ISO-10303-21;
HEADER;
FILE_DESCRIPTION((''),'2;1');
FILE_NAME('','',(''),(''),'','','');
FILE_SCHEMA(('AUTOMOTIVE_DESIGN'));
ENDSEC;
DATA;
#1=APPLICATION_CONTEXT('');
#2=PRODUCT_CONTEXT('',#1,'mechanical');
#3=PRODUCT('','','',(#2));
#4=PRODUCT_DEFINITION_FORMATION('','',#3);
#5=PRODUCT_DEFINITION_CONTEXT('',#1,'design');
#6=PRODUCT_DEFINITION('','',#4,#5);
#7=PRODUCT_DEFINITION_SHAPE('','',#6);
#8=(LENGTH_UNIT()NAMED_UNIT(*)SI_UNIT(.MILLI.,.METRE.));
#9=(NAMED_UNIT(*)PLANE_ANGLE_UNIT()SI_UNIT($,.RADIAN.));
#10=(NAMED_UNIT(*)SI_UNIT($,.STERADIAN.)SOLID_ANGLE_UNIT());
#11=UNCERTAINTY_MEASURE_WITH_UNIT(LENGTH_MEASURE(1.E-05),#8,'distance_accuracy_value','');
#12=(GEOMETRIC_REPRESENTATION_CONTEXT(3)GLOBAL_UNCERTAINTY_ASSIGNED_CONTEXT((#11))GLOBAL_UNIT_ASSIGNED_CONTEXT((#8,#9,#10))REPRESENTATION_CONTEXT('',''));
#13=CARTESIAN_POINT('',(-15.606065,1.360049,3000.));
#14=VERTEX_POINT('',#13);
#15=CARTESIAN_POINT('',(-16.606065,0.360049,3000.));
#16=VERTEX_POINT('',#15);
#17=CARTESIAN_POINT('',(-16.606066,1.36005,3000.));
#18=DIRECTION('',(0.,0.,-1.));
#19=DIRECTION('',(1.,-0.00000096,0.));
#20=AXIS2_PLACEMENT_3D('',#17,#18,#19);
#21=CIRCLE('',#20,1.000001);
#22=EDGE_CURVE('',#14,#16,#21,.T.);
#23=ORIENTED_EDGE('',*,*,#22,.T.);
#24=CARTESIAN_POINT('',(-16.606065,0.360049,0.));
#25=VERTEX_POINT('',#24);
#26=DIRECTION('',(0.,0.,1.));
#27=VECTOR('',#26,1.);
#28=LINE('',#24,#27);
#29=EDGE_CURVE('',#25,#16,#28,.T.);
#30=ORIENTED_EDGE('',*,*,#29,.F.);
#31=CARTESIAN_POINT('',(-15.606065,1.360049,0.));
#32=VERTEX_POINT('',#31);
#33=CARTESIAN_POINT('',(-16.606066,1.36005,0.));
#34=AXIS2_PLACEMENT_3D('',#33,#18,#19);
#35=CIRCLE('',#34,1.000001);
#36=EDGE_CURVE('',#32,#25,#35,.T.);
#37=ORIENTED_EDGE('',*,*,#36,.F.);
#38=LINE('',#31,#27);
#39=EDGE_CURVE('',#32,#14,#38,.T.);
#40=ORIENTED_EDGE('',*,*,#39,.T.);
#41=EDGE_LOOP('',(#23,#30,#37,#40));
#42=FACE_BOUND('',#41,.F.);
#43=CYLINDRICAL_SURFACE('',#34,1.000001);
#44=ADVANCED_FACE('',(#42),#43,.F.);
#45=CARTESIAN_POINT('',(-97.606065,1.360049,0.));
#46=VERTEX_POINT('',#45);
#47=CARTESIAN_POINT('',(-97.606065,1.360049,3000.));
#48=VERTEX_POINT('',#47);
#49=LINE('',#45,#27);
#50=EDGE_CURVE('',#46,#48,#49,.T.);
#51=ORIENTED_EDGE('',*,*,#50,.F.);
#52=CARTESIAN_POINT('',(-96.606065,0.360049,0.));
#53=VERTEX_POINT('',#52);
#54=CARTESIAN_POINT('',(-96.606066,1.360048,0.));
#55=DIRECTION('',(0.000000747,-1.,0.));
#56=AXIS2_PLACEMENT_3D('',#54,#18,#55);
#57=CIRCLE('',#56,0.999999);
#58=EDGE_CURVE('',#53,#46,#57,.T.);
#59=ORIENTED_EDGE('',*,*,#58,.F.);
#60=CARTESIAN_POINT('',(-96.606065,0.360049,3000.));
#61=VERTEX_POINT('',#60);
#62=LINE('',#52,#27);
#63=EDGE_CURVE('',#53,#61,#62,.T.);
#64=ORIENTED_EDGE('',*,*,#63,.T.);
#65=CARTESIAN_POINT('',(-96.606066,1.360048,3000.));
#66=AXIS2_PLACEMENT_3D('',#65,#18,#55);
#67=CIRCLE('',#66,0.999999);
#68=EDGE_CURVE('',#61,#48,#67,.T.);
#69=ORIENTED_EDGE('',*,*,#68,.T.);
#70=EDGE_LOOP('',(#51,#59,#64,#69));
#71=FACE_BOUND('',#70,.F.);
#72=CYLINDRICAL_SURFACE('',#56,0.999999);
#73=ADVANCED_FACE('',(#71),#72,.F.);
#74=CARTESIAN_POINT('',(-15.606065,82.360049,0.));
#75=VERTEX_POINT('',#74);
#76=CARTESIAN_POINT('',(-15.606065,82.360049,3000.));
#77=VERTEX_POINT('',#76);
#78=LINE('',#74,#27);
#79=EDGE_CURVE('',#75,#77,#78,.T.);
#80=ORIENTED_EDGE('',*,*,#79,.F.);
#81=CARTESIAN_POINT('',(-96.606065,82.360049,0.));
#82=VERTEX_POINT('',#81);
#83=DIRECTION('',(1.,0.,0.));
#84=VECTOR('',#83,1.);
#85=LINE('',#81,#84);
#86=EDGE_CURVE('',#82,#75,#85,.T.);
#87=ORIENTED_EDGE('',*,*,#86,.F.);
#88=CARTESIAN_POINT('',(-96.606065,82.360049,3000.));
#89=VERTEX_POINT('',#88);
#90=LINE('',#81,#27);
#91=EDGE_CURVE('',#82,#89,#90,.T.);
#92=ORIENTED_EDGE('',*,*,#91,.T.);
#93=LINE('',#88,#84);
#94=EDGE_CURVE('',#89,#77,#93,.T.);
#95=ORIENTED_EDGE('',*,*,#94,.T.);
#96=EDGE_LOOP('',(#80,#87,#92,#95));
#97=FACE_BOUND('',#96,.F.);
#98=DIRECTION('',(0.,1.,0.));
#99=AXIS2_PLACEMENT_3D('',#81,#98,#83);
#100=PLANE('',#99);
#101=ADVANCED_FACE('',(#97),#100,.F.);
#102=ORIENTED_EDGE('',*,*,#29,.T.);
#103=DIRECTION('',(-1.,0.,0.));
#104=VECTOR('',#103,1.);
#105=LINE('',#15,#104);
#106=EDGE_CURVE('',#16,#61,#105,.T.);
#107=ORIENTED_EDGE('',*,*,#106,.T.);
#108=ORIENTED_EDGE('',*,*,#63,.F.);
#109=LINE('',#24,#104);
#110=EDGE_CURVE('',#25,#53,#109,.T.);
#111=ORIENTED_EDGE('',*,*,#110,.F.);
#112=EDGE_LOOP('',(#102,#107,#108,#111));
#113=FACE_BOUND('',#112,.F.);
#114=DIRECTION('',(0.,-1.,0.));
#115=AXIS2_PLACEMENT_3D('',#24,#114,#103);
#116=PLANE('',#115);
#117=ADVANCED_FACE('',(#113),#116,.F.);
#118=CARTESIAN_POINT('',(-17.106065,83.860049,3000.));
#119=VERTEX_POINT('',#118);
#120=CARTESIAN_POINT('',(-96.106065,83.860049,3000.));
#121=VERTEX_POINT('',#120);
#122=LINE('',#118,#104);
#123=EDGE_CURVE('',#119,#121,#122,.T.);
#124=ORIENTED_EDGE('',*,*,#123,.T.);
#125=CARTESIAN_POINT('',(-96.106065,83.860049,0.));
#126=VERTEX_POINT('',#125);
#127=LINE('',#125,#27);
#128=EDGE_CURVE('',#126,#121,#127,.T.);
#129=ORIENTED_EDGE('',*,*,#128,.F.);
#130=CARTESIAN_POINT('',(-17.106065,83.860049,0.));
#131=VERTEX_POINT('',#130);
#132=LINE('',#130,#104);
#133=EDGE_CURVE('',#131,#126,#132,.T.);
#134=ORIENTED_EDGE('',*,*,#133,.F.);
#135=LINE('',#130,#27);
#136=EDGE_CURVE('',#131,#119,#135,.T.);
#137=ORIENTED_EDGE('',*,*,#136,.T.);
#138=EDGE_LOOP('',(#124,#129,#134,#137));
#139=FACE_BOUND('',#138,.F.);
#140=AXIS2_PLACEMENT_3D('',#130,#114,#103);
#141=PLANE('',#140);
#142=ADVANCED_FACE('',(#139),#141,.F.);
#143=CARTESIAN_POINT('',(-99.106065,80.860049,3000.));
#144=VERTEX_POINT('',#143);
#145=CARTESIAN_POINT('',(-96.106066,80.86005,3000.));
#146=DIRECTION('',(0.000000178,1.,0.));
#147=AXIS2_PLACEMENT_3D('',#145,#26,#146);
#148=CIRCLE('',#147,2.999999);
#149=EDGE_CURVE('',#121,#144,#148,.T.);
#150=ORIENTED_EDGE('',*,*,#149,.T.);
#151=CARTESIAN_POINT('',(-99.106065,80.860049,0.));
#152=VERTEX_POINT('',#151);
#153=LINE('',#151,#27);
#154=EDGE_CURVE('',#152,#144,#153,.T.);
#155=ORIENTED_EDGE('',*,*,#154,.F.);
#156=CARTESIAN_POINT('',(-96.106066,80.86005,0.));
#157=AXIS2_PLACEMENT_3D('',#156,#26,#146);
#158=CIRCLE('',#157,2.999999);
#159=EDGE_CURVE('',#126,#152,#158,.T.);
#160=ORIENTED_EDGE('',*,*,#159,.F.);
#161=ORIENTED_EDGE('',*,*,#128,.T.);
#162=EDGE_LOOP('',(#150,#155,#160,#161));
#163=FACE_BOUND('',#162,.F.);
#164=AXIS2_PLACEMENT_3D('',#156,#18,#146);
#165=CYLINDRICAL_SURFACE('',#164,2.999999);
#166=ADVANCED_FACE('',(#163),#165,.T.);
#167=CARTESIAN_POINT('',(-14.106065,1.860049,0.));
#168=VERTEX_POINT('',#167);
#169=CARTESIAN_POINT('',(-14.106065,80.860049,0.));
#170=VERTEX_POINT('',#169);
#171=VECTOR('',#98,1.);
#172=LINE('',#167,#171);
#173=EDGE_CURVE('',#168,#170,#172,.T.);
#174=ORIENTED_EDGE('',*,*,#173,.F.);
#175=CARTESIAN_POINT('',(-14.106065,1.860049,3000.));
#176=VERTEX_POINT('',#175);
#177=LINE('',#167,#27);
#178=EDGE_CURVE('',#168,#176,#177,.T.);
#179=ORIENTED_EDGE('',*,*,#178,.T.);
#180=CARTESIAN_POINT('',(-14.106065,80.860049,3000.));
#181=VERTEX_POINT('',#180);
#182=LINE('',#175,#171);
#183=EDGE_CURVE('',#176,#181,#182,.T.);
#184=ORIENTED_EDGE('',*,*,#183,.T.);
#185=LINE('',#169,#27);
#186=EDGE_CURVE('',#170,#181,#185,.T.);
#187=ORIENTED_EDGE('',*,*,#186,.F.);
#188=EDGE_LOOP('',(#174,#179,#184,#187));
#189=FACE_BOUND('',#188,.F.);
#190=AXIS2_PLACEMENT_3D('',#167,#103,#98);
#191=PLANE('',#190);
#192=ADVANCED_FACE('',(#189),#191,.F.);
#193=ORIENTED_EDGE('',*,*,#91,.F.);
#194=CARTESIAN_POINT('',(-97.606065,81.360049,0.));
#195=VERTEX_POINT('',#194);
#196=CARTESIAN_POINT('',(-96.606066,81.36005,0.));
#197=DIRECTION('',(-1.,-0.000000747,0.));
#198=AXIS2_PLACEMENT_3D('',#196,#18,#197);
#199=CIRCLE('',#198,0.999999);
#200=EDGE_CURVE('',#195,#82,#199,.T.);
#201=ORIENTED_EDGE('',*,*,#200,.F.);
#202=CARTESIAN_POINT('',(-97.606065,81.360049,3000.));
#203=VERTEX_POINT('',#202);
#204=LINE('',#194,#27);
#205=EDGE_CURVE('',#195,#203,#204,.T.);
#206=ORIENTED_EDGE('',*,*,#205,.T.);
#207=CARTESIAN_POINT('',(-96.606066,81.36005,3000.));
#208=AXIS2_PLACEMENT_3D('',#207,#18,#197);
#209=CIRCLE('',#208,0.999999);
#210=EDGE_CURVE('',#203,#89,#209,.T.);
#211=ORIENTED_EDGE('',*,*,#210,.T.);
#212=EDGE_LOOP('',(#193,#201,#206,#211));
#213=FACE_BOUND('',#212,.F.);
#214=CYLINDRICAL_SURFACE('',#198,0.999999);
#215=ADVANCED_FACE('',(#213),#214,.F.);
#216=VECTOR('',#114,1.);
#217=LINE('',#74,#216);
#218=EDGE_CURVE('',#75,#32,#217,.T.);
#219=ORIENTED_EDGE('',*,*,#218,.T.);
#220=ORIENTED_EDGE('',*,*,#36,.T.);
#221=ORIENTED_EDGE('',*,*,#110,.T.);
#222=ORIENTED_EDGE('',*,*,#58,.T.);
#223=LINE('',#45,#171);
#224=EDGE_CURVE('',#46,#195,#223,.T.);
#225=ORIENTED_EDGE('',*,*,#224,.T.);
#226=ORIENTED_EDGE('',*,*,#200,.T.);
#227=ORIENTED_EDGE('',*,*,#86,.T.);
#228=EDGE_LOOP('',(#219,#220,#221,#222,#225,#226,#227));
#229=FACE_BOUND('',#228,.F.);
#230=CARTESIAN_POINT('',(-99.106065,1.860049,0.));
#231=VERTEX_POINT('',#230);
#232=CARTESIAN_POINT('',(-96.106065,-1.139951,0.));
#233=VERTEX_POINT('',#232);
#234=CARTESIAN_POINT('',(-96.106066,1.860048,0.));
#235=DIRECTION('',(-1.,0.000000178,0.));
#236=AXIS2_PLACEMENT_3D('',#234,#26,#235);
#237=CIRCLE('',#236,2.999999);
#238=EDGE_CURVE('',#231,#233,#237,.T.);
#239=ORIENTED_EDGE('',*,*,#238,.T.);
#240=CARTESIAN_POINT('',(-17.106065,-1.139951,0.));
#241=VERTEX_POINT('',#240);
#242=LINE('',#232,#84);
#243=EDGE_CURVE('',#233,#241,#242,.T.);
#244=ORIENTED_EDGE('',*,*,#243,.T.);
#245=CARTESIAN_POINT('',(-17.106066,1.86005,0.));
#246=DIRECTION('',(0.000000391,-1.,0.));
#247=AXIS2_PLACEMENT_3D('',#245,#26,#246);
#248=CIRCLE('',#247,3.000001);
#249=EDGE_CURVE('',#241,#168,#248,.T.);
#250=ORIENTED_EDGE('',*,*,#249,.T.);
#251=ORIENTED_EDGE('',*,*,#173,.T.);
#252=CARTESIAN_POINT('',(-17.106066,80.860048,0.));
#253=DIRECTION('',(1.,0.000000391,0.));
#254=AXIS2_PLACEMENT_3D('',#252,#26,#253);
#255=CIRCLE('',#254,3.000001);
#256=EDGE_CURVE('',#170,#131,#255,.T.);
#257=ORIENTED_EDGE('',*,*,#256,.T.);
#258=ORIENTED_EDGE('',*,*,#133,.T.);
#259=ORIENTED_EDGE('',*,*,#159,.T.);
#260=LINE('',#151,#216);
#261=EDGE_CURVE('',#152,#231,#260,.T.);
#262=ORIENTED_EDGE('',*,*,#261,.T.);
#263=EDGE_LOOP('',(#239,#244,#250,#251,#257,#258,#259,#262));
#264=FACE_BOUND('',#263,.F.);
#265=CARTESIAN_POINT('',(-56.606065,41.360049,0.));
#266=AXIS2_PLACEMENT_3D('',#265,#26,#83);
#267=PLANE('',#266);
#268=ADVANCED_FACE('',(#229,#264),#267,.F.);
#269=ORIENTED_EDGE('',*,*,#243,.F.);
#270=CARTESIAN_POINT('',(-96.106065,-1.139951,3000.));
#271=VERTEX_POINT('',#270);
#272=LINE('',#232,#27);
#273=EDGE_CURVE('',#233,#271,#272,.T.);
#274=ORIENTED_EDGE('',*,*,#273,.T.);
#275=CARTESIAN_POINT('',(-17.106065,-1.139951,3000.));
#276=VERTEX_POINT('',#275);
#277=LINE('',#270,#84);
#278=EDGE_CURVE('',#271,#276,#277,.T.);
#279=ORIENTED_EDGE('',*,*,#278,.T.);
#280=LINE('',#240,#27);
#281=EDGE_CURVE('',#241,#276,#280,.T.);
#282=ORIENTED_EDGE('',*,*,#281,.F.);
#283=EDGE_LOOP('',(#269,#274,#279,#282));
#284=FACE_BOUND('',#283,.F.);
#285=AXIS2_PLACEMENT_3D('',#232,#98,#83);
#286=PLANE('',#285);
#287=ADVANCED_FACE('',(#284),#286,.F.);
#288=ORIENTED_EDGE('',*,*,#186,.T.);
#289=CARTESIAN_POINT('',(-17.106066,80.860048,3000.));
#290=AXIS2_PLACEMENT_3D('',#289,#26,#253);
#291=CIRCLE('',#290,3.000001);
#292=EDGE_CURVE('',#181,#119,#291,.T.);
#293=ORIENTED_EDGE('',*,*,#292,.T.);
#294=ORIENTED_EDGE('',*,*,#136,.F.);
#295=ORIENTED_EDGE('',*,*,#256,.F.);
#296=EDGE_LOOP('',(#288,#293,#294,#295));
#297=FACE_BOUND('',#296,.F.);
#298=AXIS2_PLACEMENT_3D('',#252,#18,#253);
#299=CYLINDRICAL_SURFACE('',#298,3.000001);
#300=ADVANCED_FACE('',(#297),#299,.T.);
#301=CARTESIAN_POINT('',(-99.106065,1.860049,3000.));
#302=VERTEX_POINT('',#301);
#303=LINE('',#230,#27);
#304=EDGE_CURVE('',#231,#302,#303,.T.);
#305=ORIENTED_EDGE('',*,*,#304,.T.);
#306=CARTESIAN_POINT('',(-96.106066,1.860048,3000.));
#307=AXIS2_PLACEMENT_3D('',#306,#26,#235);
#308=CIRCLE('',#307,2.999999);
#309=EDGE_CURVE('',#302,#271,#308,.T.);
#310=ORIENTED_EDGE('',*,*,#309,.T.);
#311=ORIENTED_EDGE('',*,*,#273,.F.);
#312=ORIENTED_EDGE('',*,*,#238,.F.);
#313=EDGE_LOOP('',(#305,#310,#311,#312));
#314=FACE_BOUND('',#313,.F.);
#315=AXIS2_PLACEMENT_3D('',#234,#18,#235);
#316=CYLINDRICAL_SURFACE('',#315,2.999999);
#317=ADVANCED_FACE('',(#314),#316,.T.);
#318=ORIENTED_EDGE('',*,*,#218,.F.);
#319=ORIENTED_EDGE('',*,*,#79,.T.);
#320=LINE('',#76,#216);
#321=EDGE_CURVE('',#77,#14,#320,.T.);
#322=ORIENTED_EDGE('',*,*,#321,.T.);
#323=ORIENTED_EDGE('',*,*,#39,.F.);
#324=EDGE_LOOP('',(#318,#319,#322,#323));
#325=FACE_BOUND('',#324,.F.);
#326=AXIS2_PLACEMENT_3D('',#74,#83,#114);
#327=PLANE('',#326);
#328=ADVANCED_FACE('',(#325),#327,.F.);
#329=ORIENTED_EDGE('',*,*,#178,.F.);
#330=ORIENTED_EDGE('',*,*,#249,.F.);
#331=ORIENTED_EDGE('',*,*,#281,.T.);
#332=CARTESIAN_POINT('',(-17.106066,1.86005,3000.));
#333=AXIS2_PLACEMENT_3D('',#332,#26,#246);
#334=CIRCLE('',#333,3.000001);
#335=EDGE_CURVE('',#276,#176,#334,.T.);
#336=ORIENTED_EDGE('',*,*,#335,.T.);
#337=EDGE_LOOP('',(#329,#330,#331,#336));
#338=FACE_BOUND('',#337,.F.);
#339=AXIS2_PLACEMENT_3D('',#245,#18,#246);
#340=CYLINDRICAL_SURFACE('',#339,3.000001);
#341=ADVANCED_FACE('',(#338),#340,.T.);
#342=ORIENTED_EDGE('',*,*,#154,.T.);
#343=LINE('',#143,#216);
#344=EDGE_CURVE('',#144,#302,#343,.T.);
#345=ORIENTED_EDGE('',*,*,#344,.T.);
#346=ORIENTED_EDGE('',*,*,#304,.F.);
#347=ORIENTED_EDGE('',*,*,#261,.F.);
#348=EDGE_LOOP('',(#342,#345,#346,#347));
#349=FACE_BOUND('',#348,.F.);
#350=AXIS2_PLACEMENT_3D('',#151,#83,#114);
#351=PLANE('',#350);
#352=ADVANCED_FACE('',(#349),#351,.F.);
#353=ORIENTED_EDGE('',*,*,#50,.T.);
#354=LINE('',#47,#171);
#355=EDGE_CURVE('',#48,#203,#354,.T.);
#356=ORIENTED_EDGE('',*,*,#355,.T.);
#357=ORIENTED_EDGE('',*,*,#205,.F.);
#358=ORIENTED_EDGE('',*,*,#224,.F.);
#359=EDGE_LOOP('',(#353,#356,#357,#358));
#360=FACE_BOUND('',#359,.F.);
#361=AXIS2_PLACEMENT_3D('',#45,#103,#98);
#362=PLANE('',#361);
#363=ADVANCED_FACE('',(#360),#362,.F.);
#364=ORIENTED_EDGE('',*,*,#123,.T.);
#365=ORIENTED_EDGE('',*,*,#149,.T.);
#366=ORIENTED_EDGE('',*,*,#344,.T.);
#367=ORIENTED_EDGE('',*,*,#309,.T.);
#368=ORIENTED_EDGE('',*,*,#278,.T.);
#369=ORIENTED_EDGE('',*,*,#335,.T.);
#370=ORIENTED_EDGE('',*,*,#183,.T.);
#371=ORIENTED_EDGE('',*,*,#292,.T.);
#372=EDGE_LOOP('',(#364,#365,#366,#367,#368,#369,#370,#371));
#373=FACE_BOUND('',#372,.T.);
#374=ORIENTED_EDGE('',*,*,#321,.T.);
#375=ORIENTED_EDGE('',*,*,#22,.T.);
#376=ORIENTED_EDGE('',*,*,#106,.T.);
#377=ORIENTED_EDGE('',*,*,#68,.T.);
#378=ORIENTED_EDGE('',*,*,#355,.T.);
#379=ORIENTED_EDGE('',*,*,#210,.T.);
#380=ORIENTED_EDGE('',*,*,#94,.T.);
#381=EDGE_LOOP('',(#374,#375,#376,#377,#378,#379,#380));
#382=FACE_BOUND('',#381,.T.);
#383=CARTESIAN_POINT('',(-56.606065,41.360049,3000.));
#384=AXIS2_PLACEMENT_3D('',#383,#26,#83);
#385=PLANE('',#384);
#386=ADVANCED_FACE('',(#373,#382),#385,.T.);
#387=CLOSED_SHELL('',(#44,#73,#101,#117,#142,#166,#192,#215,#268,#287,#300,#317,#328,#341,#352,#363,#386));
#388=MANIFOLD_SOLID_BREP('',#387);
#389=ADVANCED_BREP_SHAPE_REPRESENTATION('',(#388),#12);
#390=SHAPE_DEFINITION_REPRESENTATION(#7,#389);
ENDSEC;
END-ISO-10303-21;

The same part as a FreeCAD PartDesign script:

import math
import FreeCAD as App
import Part
import Sketcher
from FreeCAD import Vector
Q = App.Units.Quantity

doc = App.newDocument("Part")
body = doc.addObject("PartDesign::Body", "Body")

# Sketch on XY plane
sketch1 = body.newObject("Sketcher::SketchObject", "Sketch")
sketch1.AttachmentSupport = (doc.getObject("XY_Plane"), [""])
sketch1.MapMode = "FlatFace"
sketch1.addGeometry([
    Part.LineSegment(Vector(-17.1, 83.9, 0), Vector(-96.1, 83.9, 0)),  # 0
    Part.ArcOfCircle(Part.Circle(Vector(-96.1, 80.9, 0), Vector(0, 0, 1), 3), math.radians(90), math.radians(180)),  # 1
    Part.LineSegment(Vector(-99.1, 80.9, 0), Vector(-99.1, 1.9, 0)),  # 2
    Part.ArcOfCircle(Part.Circle(Vector(-96.1, 1.9, 0), Vector(0, 0, 1), 3), math.radians(180), math.radians(270)),  # 3
    Part.LineSegment(Vector(-96.1, -1.1, 0), Vector(-17.1, -1.1, 0)),  # 4
    Part.ArcOfCircle(Part.Circle(Vector(-17.1, 1.9, 0), Vector(0, 0, 1), 3), math.radians(-90), math.radians(0)),  # 5
    Part.LineSegment(Vector(-14.1, 1.9, 0), Vector(-14.1, 80.9, 0)),  # 6
    Part.ArcOfCircle(Part.Circle(Vector(-17.1, 80.9, 0), Vector(0, 0, 1), 3), math.radians(0), math.radians(90)),  # 7
    Part.ArcOfCircle(Part.Circle(Vector(-16.6, 1.4, 0), Vector(0, 0, 1), 1), math.radians(-90), math.radians(0)),  # 8
    Part.LineSegment(Vector(-16.6, 0.4, 0), Vector(-96.6, 0.4, 0)),  # 9
    Part.ArcOfCircle(Part.Circle(Vector(-96.6, 1.4, 0), Vector(0, 0, 1), 1), math.radians(180), math.radians(270)),  # 10
    Part.LineSegment(Vector(-97.6, 1.4, 0), Vector(-97.6, 81.4, 0)),  # 11
    Part.ArcOfCircle(Part.Circle(Vector(-96.6, 81.4, 0), Vector(0, 0, 1), 1), math.radians(90), math.radians(180)),  # 12
    Part.LineSegment(Vector(-96.6, 82.4, 0), Vector(-15.6, 82.4, 0)),  # 13
    Part.LineSegment(Vector(-15.6, 82.4, 0), Vector(-15.6, 1.4, 0)),  # 14
], False)
sketch1.addConstraint([
    Sketcher.Constraint("Tangent", 0, 2, 1, 1),
    Sketcher.Constraint("Tangent", 1, 2, 2, 1),
    Sketcher.Constraint("Tangent", 2, 2, 3, 1),
    Sketcher.Constraint("Tangent", 3, 2, 4, 1),
    Sketcher.Constraint("Tangent", 4, 2, 5, 1),
    Sketcher.Constraint("Tangent", 5, 2, 6, 1),
    Sketcher.Constraint("Tangent", 6, 2, 7, 1),
    Sketcher.Constraint("Tangent", 7, 2, 0, 1),
    Sketcher.Constraint("Tangent", 8, 1, 9, 1),
    Sketcher.Constraint("Tangent", 9, 2, 10, 2),
    Sketcher.Constraint("Tangent", 10, 1, 11, 1),
    Sketcher.Constraint("Tangent", 11, 2, 12, 2),
    Sketcher.Constraint("Tangent", 12, 1, 13, 1),
    Sketcher.Constraint("Coincident", 13, 2, 14, 1),
    Sketcher.Constraint("Tangent", 14, 2, 8, 2),
    Sketcher.Constraint("Horizontal", 0),
    Sketcher.Constraint("Vertical", 2),
    Sketcher.Constraint("Horizontal", 4),
    Sketcher.Constraint("Vertical", 6),
    Sketcher.Constraint("Horizontal", 9),
    Sketcher.Constraint("Vertical", 11),
    Sketcher.Constraint("Horizontal", 13),
    Sketcher.Constraint("Vertical", 14),
    Sketcher.Constraint("Equal", 1, 3),
    Sketcher.Constraint("Equal", 3, 5),
    Sketcher.Constraint("Equal", 5, 7),
    Sketcher.Constraint("Equal", 8, 10),
    Sketcher.Constraint("Equal", 10, 12),
    Sketcher.Constraint("Equal", 4, 2),
    Sketcher.Constraint("Equal", 9, 11),
    Sketcher.Constraint("Radius", 1, Q("2.999999 mm")),
    Sketcher.Constraint("Radius", 8, Q("1.000001 mm")),
    Sketcher.Constraint("DistanceX", 0, 2, 0, 1, Q("79 mm")),
    Sketcher.Constraint("DistanceX", 9, 2, 9, 1, Q("80 mm")),
    Sketcher.Constraint("DistanceX", 5, 3, 8, 3, Q("0.5 mm")),
    Sketcher.Constraint("DistanceY", 8, 3, 5, 3, Q("0.5 mm")),
    Sketcher.Constraint("DistanceY", -1, 1, 1, 3, Q("80.86005 mm")),
    Sketcher.Constraint("DistanceX", 1, 3, -1, 1, Q("96.106066 mm")),
])
pad1 = body.newObject("PartDesign::Pad", "Pad")
pad1.Profile = sketch1
pad1.Length = 3000

doc.recompute()
